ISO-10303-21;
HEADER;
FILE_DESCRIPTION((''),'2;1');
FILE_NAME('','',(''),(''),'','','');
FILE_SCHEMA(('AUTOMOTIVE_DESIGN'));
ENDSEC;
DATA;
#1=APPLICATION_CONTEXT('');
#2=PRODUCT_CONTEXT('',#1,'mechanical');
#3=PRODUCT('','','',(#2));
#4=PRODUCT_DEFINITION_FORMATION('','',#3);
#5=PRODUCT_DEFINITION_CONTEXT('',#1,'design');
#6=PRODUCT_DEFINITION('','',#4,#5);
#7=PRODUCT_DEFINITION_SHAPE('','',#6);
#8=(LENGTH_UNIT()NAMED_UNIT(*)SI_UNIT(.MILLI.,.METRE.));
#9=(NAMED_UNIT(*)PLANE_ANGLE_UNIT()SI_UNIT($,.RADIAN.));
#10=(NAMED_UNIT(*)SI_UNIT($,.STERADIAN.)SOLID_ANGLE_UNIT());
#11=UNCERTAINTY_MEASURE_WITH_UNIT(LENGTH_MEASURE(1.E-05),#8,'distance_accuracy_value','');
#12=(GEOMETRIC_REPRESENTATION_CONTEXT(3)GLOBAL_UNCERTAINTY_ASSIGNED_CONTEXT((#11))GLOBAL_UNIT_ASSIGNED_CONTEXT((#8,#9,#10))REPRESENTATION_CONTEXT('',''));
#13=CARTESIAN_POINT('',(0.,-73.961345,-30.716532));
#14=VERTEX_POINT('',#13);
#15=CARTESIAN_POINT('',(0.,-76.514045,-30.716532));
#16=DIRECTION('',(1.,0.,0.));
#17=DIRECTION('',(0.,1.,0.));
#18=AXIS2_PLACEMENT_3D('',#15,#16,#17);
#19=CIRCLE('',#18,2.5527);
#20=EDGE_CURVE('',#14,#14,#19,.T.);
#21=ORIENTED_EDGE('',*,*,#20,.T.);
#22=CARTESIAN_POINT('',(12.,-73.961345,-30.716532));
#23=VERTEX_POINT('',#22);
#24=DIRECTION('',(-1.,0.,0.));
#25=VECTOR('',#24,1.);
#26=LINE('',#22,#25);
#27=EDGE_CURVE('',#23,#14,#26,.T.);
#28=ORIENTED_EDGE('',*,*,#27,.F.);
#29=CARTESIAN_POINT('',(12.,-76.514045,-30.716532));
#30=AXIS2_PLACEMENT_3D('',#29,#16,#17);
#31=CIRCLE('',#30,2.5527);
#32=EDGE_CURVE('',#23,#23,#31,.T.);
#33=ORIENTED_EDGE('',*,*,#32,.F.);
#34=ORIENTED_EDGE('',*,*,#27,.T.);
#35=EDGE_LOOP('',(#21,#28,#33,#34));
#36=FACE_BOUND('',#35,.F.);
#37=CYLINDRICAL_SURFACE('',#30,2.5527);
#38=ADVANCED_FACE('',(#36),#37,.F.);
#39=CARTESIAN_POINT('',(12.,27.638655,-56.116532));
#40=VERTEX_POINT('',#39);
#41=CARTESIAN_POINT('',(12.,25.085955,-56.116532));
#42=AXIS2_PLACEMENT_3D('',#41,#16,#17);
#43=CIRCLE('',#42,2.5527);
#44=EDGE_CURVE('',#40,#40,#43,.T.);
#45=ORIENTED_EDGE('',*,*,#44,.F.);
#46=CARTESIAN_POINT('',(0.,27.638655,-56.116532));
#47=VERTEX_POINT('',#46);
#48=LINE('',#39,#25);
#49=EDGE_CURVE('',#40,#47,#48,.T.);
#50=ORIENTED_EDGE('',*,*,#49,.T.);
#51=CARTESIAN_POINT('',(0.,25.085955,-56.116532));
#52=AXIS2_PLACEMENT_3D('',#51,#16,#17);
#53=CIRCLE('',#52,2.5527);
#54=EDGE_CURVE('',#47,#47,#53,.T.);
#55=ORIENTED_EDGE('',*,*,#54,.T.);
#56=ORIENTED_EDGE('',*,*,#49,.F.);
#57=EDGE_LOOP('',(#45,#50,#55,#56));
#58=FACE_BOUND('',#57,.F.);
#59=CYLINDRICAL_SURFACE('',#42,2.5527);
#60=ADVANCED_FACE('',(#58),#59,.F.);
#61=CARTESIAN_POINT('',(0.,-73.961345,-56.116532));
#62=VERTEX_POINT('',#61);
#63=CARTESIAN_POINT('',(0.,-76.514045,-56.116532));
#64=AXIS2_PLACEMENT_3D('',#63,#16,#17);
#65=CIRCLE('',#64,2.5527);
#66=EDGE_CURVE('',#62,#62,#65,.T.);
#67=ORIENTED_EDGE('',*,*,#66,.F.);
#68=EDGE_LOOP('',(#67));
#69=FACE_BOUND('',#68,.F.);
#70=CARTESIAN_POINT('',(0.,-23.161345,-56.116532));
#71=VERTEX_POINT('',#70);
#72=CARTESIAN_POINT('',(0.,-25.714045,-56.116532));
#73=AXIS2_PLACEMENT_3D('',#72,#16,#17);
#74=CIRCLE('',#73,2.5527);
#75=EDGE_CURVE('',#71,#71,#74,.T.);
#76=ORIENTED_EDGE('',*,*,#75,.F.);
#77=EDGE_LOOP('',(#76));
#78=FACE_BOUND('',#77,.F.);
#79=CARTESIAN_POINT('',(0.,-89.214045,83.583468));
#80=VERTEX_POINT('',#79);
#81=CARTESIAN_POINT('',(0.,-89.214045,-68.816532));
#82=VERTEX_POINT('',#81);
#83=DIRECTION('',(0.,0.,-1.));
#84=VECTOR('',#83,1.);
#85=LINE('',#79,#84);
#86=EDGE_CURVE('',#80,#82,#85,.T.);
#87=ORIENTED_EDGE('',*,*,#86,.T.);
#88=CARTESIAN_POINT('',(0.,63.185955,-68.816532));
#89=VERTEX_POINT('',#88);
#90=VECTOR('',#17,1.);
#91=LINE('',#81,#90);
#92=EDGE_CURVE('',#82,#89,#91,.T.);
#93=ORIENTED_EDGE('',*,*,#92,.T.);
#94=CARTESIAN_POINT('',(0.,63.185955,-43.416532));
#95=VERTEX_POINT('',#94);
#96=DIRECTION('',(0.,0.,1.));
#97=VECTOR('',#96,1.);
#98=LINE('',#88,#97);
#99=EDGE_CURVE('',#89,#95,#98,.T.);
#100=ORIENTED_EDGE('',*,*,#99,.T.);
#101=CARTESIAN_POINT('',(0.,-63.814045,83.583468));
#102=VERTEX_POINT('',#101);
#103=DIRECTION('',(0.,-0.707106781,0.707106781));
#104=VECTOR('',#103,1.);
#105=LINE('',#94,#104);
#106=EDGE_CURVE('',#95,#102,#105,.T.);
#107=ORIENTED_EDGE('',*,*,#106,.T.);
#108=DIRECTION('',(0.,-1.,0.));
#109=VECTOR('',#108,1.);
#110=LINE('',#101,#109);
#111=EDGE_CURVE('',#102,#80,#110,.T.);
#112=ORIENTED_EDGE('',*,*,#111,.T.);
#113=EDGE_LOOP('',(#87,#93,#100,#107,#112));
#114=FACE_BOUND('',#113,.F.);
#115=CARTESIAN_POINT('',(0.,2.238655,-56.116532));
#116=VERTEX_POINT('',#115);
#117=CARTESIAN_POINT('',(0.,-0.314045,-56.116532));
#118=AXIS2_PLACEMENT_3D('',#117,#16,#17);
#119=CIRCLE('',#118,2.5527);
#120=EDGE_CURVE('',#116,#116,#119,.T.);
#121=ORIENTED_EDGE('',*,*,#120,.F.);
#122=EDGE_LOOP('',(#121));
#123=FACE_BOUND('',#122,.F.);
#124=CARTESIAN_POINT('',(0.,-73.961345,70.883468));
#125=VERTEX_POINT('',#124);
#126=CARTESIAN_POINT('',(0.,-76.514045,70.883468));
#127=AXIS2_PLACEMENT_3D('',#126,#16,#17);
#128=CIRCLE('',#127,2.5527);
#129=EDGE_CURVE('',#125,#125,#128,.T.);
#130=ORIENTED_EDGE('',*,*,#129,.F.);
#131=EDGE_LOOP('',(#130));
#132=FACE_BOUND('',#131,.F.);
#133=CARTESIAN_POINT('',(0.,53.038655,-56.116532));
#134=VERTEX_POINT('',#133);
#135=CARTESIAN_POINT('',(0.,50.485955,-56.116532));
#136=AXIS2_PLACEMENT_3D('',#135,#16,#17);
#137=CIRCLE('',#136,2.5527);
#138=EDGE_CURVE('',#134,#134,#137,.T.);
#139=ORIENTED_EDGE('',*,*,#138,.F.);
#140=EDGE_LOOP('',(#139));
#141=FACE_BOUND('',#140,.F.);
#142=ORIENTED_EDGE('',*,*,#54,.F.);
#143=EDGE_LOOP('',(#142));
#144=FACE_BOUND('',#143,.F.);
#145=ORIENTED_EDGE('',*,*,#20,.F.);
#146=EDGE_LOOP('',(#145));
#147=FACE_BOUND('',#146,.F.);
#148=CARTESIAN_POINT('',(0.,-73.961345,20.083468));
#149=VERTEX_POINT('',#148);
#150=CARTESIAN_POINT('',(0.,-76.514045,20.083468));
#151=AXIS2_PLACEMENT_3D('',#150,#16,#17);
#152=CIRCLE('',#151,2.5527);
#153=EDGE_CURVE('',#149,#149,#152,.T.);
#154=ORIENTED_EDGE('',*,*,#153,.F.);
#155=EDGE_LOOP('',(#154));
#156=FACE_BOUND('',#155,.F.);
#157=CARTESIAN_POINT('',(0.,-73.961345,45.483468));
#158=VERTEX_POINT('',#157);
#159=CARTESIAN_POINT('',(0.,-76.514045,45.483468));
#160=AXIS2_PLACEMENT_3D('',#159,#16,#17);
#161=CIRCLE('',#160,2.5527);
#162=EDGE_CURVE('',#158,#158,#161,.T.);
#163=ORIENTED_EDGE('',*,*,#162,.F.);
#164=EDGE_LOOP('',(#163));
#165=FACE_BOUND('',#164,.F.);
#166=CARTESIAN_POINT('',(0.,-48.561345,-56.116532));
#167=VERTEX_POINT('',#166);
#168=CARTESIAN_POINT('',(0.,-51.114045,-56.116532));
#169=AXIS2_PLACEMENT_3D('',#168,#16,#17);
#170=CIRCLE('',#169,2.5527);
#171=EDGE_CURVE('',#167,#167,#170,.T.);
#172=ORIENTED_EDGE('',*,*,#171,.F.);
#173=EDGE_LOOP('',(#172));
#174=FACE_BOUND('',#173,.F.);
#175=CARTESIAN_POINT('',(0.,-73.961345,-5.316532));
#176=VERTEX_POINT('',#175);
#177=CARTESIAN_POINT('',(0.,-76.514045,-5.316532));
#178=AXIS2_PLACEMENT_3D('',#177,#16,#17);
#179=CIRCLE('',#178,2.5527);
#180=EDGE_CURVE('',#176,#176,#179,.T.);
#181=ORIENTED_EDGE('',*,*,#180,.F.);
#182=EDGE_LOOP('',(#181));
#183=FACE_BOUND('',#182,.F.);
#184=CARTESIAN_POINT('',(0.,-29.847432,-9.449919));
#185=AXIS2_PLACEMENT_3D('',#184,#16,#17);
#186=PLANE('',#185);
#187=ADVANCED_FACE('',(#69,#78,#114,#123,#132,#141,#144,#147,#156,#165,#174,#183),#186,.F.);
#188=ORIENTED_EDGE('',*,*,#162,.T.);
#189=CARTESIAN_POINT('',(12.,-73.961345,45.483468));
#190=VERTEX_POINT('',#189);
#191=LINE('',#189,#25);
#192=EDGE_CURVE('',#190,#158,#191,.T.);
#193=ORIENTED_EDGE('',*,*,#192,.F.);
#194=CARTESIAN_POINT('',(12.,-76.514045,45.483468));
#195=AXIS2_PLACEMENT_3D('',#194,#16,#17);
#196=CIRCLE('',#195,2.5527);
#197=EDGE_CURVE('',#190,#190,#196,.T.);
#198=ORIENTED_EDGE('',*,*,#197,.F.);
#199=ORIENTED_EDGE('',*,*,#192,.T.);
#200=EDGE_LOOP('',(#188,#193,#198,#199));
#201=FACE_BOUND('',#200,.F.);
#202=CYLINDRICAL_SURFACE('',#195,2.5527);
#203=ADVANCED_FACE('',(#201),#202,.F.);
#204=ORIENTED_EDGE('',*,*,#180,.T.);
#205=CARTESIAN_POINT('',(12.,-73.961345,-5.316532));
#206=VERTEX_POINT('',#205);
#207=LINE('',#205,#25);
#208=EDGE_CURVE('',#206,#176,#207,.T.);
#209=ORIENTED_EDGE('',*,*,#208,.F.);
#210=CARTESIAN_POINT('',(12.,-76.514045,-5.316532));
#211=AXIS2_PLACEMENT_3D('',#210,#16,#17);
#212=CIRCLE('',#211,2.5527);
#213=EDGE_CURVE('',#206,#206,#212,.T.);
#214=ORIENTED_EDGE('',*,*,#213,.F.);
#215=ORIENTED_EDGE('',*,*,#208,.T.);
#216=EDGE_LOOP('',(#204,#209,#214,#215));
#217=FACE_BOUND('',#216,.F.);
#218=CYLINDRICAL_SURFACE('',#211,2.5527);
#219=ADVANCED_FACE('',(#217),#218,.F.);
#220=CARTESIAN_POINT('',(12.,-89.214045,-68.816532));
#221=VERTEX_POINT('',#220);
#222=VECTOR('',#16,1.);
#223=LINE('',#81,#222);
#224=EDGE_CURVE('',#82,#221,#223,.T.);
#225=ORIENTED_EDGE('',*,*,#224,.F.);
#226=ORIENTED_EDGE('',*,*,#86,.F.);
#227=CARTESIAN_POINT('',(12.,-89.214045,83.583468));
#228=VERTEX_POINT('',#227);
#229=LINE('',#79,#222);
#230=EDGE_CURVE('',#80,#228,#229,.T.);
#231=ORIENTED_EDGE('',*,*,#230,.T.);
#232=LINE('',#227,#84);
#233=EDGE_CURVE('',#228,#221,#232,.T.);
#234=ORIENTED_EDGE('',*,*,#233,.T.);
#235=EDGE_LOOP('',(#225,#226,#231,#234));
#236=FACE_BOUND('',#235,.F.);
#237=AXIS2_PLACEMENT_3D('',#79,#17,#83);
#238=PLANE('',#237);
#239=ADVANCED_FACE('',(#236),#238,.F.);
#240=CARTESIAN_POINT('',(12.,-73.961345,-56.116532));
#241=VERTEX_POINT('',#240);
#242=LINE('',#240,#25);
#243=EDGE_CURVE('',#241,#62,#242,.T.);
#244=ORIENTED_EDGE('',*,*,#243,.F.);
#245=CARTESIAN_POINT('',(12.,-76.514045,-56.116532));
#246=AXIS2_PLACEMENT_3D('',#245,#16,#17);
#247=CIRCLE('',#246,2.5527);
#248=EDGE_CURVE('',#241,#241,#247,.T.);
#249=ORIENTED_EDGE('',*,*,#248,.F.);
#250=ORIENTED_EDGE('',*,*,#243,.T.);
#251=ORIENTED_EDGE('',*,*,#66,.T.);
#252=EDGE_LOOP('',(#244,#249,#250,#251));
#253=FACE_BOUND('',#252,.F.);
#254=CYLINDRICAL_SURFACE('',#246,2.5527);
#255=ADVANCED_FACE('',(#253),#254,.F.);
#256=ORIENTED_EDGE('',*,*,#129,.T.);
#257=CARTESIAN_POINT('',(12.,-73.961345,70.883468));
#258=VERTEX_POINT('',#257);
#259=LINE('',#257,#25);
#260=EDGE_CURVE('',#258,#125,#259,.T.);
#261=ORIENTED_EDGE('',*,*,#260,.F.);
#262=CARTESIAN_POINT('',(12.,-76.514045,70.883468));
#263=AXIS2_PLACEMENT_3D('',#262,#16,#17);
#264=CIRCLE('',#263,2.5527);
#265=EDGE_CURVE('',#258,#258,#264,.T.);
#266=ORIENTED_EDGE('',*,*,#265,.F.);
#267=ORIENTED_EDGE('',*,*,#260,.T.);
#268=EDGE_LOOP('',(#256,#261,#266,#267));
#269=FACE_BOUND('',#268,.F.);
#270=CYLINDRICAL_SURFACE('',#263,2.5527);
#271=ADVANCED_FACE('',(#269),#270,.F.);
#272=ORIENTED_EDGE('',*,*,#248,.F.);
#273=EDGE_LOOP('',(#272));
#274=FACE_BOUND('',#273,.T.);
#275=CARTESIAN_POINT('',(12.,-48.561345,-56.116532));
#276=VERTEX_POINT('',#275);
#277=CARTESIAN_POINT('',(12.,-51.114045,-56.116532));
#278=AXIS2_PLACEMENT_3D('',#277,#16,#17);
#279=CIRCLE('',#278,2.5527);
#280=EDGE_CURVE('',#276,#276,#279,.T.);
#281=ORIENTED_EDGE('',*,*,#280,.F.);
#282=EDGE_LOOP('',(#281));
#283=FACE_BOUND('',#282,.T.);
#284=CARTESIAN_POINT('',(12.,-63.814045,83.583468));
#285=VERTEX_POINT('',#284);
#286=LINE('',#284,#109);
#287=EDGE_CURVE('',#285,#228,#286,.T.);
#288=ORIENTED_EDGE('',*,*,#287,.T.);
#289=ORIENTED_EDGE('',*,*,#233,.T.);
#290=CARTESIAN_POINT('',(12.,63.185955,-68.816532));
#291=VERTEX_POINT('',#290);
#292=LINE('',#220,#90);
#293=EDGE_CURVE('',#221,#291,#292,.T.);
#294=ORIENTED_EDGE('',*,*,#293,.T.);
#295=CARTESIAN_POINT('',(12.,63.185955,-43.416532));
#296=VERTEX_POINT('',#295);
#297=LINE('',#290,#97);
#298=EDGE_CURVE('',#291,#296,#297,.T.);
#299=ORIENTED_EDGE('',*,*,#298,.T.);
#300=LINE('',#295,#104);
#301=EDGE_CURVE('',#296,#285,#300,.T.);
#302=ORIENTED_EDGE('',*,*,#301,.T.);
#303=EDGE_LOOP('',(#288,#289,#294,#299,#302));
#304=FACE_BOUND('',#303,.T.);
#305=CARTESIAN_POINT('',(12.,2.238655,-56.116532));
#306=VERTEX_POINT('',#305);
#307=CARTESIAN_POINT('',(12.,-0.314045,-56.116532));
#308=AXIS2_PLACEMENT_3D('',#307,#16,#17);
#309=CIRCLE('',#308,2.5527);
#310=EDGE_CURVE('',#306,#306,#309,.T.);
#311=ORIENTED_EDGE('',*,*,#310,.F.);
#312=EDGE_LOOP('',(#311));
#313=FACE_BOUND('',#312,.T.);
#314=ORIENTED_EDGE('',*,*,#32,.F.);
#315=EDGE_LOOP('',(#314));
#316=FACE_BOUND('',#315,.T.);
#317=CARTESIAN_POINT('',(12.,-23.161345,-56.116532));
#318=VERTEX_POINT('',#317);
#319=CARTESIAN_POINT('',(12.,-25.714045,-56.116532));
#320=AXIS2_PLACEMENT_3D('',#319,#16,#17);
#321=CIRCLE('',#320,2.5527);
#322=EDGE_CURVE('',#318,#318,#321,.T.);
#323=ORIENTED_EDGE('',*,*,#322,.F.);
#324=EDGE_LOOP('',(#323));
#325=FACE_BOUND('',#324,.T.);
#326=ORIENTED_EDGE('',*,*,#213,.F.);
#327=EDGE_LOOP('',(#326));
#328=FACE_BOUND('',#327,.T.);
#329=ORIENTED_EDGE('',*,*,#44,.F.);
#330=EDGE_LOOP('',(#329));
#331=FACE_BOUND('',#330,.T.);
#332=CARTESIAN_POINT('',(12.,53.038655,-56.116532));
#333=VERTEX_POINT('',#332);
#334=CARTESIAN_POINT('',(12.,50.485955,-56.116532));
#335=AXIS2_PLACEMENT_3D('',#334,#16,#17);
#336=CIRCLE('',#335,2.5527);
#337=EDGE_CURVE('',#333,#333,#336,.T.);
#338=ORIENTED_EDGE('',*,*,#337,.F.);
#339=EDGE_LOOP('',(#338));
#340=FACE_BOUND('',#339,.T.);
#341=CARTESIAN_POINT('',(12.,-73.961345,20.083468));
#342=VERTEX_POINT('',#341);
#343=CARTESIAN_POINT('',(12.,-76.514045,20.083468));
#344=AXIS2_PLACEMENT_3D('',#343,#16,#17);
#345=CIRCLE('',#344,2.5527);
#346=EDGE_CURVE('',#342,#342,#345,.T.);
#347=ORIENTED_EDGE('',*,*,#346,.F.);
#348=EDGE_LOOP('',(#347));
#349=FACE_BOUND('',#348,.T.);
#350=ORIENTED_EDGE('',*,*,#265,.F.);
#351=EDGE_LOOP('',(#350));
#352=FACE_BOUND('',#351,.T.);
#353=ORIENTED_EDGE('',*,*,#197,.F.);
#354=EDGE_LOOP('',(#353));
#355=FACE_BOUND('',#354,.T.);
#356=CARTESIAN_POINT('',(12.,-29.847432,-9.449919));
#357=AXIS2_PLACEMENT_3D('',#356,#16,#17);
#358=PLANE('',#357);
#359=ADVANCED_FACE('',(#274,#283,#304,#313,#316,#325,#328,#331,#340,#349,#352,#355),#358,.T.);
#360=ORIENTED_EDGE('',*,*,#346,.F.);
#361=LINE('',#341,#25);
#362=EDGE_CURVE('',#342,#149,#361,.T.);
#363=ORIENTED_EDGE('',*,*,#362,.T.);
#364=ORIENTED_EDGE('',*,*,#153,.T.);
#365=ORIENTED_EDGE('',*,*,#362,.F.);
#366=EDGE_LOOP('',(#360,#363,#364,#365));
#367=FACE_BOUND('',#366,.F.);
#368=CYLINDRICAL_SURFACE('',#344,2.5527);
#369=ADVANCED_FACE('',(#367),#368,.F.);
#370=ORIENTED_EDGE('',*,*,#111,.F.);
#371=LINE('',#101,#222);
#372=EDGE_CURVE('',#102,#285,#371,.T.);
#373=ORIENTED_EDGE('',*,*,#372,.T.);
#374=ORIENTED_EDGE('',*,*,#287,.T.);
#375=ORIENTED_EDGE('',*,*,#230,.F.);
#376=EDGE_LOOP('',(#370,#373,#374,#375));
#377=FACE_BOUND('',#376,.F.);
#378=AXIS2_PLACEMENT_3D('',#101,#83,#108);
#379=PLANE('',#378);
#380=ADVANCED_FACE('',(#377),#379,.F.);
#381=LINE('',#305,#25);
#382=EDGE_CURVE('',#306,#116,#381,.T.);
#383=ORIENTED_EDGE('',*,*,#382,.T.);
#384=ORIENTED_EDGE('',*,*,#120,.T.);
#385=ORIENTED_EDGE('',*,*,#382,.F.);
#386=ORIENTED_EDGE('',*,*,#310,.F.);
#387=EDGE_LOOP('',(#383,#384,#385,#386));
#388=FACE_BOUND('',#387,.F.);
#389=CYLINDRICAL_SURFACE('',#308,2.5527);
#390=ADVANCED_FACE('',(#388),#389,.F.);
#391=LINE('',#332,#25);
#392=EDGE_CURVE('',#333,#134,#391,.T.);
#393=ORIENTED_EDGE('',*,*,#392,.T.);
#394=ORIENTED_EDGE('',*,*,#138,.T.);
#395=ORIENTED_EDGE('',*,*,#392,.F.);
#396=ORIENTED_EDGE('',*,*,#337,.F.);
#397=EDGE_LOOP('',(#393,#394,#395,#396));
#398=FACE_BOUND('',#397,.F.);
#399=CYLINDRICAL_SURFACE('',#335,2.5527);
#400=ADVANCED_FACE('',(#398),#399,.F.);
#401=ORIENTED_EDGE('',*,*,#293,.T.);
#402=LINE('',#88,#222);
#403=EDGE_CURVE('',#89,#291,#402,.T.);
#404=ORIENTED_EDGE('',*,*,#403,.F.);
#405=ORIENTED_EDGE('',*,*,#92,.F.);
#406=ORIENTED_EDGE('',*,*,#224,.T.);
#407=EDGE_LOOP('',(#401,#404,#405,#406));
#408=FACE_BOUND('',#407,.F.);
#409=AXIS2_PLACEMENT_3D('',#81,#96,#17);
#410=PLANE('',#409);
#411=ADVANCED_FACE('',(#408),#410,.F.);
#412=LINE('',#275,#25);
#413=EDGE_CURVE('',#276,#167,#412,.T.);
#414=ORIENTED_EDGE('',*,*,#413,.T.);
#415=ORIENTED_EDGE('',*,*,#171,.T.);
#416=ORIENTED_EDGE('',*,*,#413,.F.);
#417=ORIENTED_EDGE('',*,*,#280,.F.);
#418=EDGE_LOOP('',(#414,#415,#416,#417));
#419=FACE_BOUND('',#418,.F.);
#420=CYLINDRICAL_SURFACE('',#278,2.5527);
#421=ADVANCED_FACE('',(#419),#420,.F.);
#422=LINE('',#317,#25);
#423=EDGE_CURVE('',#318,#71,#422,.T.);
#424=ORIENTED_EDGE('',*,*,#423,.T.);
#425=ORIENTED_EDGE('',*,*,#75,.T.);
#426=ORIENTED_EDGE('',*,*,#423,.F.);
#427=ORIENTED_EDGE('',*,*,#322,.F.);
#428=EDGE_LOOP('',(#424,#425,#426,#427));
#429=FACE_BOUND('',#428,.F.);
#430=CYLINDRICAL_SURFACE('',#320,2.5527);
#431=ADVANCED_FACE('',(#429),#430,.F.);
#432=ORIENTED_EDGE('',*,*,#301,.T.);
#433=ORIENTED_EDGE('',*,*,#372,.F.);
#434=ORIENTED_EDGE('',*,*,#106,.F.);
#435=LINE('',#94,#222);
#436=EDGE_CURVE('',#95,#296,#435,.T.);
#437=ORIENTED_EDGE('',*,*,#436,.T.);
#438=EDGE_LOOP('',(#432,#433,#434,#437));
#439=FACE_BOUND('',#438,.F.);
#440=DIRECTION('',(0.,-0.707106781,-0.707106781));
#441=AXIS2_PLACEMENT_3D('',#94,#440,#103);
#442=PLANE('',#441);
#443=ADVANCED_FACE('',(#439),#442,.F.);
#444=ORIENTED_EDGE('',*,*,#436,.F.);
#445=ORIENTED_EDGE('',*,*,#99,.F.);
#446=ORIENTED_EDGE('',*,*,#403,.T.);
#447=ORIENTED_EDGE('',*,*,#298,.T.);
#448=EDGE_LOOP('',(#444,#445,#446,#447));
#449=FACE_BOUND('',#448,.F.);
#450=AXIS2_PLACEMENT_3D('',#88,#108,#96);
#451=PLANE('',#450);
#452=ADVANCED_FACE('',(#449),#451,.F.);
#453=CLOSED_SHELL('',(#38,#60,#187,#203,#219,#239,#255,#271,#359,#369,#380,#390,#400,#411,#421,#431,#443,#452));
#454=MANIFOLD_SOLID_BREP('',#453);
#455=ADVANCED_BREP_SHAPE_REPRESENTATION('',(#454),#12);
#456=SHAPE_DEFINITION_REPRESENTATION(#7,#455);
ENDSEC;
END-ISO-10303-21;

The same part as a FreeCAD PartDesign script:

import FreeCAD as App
import Part
import Sketcher
Q = App.Units.Quantity

doc = App.newDocument("Part")
body = doc.addObject("PartDesign::Body", "Body")

# Sketch on YZ plane
sketch1 = body.newObject("Sketcher::SketchObject", "Sketch")
sketch1.AttachmentSupport = (doc.getObject("YZ_Plane"), [""])
sketch1.MapMode = "FlatFace"
sketch1.addGeometry([
    Part.LineSegment(App.Vector(-64, 84, 0), App.Vector(-89, 84, 0)),  # 0
    Part.LineSegment(App.Vector(-89, 84, 0), App.Vector(-89, -69, 0)),  # 1
    Part.LineSegment(App.Vector(-89, -69, 0), App.Vector(63, -69, 0)),  # 2
    Part.LineSegment(App.Vector(63, -69, 0), App.Vector(63, -43, 0)),  # 3
    Part.LineSegment(App.Vector(63, -43, 0), App.Vector(-64, 84, 0)),  # 4
], False)
sketch1.addConstraint([
    Sketcher.Constraint("Coincident", 0, 2, 1, 1),
    Sketcher.Constraint("Coincident", 1, 2, 2, 1),
    Sketcher.Constraint("Coincident", 2, 2, 3, 1),
    Sketcher.Constraint("Coincident", 3, 2, 4, 1),
    Sketcher.Constraint("Coincident", 4, 2, 0, 1),
    Sketcher.Constraint("Horizontal", 0),
    Sketcher.Constraint("Vertical", 1),
    Sketcher.Constraint("Horizontal", 2),
    Sketcher.Constraint("Vertical", 3),
    Sketcher.Constraint("Equal", 2, 1),
    Sketcher.Constraint("Equal", 0, 3),
    Sketcher.Constraint("DistanceX", 0, 2, 0, 1, Q("1 in")),
    Sketcher.Constraint("DistanceX", 2, 1, 2, 2, Q("6 in")),
    Sketcher.Constraint("DistanceY", 1, 2, -1, 1, Q("68.816532 mm")),
    Sketcher.Constraint("DistanceX", 0, 2, -1, 1, Q("89.214045 mm")),
])
pad1 = body.newObject("PartDesign::Pad", "Pad")
pad1.Profile = sketch1
pad1.Length = 12

# Sketch on YZ plane
sketch2 = body.newObject("Sketcher::SketchObject", "Sketch001")
sketch2.AttachmentSupport = (doc.getObject("YZ_Plane"), [""])
sketch2.MapMode = "FlatFace"
sketch2.AttachmentOffset = App.Placement(App.Vector(0, 0, 12), App.Rotation())
sketch2.addGeometry([
    Part.Circle(App.Vector(-76.5, -56.1, 0), App.Vector(0, 0, 1), 2.6),  # 0
    Part.Circle(App.Vector(-76.5, -30.7, 0), App.Vector(0, 0, 1), 2.6),  # 1
    Part.Circle(App.Vector(-76.5, -5.3, 0), App.Vector(0, 0, 1), 2.6),  # 2
    Part.Circle(App.Vector(-76.5, 20.1, 0), App.Vector(0, 0, 1), 2.6),  # 3
    Part.Circle(App.Vector(-76.5, 45.5, 0), App.Vector(0, 0, 1), 2.6),  # 4
    Part.Circle(App.Vector(-76.5, 70.9, 0), App.Vector(0, 0, 1), 2.6),  # 5
    Part.Circle(App.Vector(-51.1, -56.1, 0), App.Vector(0, 0, 1), 2.6),  # 6
    Part.Circle(App.Vector(-25.7, -56.1, 0), App.Vector(0, 0, 1), 2.6),  # 7
    Part.Circle(App.Vector(-0.3, -56.1, 0), App.Vector(0, 0, 1), 2.6),  # 8
    Part.Circle(App.Vector(25.1, -56.1, 0), App.Vector(0, 0, 1), 2.6),  # 9
    Part.Circle(App.Vector(50.5, -56.1, 0), App.Vector(0, 0, 1), 2.6),  # 10
], False)
sketch2.addConstraint([
    Sketcher.Constraint("Equal", 0, 1),
    Sketcher.Constraint("Equal", 1, 2),
    Sketcher.Constraint("Equal", 2, 3),
    Sketcher.Constraint("Equal", 3, 4),
    Sketcher.Constraint("Equal", 4, 5),
    Sketcher.Constraint("Equal", 5, 6),
    Sketcher.Constraint("Equal", 6, 7),
    Sketcher.Constraint("Equal", 7, 8),
    Sketcher.Constraint("Equal", 8, 9),
    Sketcher.Constraint("Equal", 9, 10),
    Sketcher.Constraint("Horizontal", 0, 3, 6, 3),
    Sketcher.Constraint("Horizontal", 6, 3, 7, 3),
    Sketcher.Constraint("Horizontal", 7, 3, 8, 3),
    Sketcher.Constraint("Horizontal", 8, 3, 9, 3),
    Sketcher.Constraint("Horizontal", 9, 3, 10, 3),
    Sketcher.Constraint("Vertical", 0, 3, 1, 3),
    Sketcher.Constraint("Vertical", 1, 3, 2, 3),
    Sketcher.Constraint("Vertical", 2, 3, 3, 3),
    Sketcher.Constraint("Vertical", 3, 3, 4, 3),
    Sketcher.Constraint("Vertical", 4, 3, 5, 3),
    Sketcher.Constraint("Diameter", 0, Q("0.201 in")),
    Sketcher.Constraint("DistanceY", 0, 3, 1, 3, Q("1 in")),
    Sketcher.Constraint("DistanceY", 1, 3, 2, 3, Q("1 in")),
    Sketcher.Constraint("DistanceY", 2, 3, 3, 3, Q("1 in")),
    Sketcher.Constraint("DistanceY", 3, 3, 4, 3, Q("1 in")),
    Sketcher.Constraint("DistanceY", 4, 3, 5, 3, Q("1 in")),
    Sketcher.Constraint("DistanceX", 0, 3, 6, 3, Q("1 in")),
    Sketcher.Constraint("DistanceX", 6, 3, 7, 3, Q("1 in")),
    Sketcher.Constraint("DistanceX", 7, 3, 8, 3, Q("1 in")),
    Sketcher.Constraint("DistanceX", 8, 3, 9, 3, Q("1 in")),
    Sketcher.Constraint("DistanceX", 9, 3, 10, 3, Q("1 in")),
    Sketcher.Constraint("DistanceY", 2, 3, -1, 1, Q("5.316532 mm")),
    Sketcher.Constraint("DistanceX", 0, 3, -1, 1, Q("76.514045 mm")),
])
pocket1 = body.newObject("PartDesign::Pocket", "Pocket")
pocket1.Profile = sketch2
pocket1.Length = Q("1 in")

doc.recompute()
